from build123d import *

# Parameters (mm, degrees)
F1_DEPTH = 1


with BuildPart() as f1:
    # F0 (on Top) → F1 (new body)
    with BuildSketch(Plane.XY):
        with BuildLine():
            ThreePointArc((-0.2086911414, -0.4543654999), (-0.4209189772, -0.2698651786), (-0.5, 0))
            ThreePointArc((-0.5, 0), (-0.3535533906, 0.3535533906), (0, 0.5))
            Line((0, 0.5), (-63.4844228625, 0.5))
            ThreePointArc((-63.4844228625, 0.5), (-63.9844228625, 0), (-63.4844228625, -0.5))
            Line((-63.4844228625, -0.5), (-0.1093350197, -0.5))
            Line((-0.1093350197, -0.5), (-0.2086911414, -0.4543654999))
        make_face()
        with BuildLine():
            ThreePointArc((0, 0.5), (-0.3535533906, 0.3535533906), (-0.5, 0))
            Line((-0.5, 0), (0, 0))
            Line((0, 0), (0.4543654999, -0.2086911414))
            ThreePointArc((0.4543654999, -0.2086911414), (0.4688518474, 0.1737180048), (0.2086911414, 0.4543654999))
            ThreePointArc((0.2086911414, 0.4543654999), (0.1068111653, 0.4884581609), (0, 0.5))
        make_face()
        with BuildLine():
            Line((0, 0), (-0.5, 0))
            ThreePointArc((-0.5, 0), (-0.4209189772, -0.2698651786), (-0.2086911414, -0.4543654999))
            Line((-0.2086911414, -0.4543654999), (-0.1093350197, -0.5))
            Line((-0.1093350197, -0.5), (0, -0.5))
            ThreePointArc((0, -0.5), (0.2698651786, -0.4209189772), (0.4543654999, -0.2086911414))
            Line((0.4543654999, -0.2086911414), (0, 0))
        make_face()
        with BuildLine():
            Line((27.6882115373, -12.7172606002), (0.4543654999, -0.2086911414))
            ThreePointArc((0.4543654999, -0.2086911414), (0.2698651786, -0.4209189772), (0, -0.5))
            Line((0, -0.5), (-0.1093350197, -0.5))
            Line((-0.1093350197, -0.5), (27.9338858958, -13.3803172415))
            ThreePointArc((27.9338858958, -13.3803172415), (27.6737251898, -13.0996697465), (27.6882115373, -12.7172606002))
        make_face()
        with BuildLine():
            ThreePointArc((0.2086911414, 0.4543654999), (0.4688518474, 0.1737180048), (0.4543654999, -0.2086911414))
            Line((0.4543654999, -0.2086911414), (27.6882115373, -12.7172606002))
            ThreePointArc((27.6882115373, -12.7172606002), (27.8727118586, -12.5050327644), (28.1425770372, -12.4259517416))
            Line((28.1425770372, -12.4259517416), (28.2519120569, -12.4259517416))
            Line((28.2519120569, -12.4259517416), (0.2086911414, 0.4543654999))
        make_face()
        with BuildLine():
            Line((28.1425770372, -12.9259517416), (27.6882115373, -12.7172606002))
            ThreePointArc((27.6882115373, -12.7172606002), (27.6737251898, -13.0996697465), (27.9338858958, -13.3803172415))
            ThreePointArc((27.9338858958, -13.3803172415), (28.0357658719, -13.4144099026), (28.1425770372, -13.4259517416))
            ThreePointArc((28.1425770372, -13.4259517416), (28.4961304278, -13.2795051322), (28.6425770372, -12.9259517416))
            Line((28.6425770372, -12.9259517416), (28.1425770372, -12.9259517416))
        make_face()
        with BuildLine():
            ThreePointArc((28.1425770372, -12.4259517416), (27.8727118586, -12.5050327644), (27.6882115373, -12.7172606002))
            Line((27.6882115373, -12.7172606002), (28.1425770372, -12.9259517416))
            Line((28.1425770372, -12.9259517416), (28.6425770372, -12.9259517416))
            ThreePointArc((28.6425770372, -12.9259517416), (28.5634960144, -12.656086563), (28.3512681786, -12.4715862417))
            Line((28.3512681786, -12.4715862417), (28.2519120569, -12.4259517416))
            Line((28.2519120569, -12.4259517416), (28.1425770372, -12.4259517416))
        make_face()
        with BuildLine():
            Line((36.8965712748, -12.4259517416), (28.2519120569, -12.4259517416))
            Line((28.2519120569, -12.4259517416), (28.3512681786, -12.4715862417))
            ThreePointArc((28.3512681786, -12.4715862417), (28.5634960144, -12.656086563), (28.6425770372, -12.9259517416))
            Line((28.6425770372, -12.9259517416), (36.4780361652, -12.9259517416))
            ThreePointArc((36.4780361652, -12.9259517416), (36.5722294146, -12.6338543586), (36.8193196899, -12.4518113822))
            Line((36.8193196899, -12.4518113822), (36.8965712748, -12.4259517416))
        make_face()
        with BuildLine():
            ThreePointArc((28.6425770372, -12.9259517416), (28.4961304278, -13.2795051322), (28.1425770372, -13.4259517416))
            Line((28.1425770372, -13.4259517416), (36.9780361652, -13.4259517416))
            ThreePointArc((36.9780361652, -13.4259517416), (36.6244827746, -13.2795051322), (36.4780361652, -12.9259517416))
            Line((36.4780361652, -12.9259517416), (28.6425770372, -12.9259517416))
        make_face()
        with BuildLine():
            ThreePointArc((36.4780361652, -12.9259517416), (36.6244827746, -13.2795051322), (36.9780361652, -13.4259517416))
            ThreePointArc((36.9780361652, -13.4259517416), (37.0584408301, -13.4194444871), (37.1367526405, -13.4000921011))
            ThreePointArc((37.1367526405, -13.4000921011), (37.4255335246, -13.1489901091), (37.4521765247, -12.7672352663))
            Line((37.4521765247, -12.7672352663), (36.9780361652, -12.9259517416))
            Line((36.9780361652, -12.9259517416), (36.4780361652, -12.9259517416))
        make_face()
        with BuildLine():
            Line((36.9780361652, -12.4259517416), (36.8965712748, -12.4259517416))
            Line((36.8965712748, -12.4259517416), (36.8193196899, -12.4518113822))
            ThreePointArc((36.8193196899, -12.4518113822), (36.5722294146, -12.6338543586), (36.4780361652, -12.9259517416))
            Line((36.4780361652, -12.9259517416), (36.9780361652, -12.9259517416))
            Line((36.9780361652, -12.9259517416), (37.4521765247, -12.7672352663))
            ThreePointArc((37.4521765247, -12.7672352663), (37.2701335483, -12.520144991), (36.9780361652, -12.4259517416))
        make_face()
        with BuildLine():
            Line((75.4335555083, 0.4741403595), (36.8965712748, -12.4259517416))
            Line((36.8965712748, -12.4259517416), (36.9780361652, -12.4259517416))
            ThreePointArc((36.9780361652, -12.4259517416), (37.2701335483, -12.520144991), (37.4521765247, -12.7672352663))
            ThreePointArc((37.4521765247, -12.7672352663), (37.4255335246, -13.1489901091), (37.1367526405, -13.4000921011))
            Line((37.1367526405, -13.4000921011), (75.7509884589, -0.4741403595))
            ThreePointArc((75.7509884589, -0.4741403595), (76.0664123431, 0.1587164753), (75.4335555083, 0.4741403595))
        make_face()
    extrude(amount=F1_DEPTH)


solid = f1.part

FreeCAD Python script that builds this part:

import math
import FreeCAD as App
import Part
import Sketcher
from FreeCAD import Vector

doc = App.newDocument("Part")
body = doc.addObject("PartDesign::Body", "Body")

sketch1 = body.newObject("Sketcher::SketchObject", "Sketch")
sketch1.AttachmentSupport = (doc.getObject("XY_Plane"), [""])
sketch1.MapMode = "FlatFace"
sketch1.addGeometry([
    Part.ArcOfCircle(Part.Circle(Vector(0, 0, 0), Vector(0, 0, 1), 0.5), math.radians(65), math.radians(90)),
    Part.LineSegment(Vector(0, 0.5, 0), Vector(-63.48, 0.5, 0)),
    Part.ArcOfCircle(Part.Circle(Vector(-63.48, 0, 0), Vector(0, 0, 1), 0.5), math.radians(90), math.radians(270)),
    Part.LineSegment(Vector(-63.48, -0.5, 0), Vector(-0.11, -0.5, 0)),
    Part.LineSegment(Vector(-0.11, -0.5, 0), Vector(27.93, -13.38, 0)),
    Part.ArcOfCircle(Part.Circle(Vector(28.14, -12.93, 0), Vector(0, 0, 1), 0.5), math.radians(-115), math.radians(-90)),
    Part.LineSegment(Vector(28.14, -13.43, 0), Vector(36.98, -13.43, 0)),
    Part.ArcOfCircle(Part.Circle(Vector(36.98, -12.93, 0), Vector(0, 0, 1), 0.5), math.radians(-90), math.radians(-71.49)),
    Part.LineSegment(Vector(37.14, -13.4, 0), Vector(75.75, -0.47, 0)),
    Part.ArcOfCircle(Part.Circle(Vector(75.59, 0, 0), Vector(0, 0, 1), 0.5), math.radians(-71), math.radians(109)),
    Part.LineSegment(Vector(75.43, 0.47, 0), Vector(36.9, -12.43, 0)),
    Part.LineSegment(Vector(36.9, -12.43, 0), Vector(28.25, -12.43, 0)),
    Part.LineSegment(Vector(28.25, -12.43, 0), Vector(0.21, 0.45, 0)),
], False)
sketch1.addConstraint([
    Sketcher.Constraint("Tangent", 0, 2, 1, 1),
    Sketcher.Constraint("Tangent", 1, 2, 2, 1),
    Sketcher.Constraint("Tangent", 2, 2, 3, 1),
    Sketcher.Constraint("Coincident", 3, 2, 4, 1),
    Sketcher.Constraint("Tangent", 4, 2, 5, 1),
    Sketcher.Constraint("Tangent", 5, 2, 6, 1),
    Sketcher.Constraint("Tangent", 6, 2, 7, 1),
    Sketcher.Constraint("Tangent", 7, 2, 8, 1),
    Sketcher.Constraint("Tangent", 8, 2, 9, 1),
    Sketcher.Constraint("Tangent", 9, 2, 10, 1),
    Sketcher.Constraint("Coincident", 10, 2, 11, 1),
    Sketcher.Constraint("Coincident", 11, 2, 12, 1),
    Sketcher.Constraint("Tangent", 12, 2, 0, 1),
    Sketcher.Constraint("Horizontal", 1),
    Sketcher.Constraint("Horizontal", 3),
    Sketcher.Constraint("Horizontal", 6),
    Sketcher.Constraint("Horizontal", 11),
    Sketcher.Constraint("Coincident", 0, 3, -1, 1),
    Sketcher.Constraint("Equal", 0, 2),
    Sketcher.Constraint("Equal", 2, 5),
    Sketcher.Constraint("Equal", 5, 7),
    Sketcher.Constraint("Equal", 7, 9),
    Sketcher.Constraint("PointOnObject", 9, 3, -1),
    Sketcher.Constraint("Parallel", 8, 10),
    Sketcher.Constraint("Parallel", 4, 12),
    Sketcher.Constraint("Equal", 4, 12),
    Sketcher.Constraint("Radius", 0, 0.5),
    Sketcher.Constraint("DistanceX", 2, 3, 5, 3, 91.627),
    Sketcher.Constraint("DistanceX", 6, 1, 6, 2, 8.835459),
    Sketcher.Constraint("DistanceX", 11, 2, 11, 1, 8.644659),
    Sketcher.Constraint("Distance", 4, 30.85976),
    Sketcher.Constraint("Distance", 8, 40.720258),
    Sketcher.Constraint("DistanceX", 1, 2, 1, 1, 63.484423),
])
pad1 = body.newObject("PartDesign::Pad", "Pad")
pad1.Profile = sketch1
pad1.Length = 1

doc.recompute()
